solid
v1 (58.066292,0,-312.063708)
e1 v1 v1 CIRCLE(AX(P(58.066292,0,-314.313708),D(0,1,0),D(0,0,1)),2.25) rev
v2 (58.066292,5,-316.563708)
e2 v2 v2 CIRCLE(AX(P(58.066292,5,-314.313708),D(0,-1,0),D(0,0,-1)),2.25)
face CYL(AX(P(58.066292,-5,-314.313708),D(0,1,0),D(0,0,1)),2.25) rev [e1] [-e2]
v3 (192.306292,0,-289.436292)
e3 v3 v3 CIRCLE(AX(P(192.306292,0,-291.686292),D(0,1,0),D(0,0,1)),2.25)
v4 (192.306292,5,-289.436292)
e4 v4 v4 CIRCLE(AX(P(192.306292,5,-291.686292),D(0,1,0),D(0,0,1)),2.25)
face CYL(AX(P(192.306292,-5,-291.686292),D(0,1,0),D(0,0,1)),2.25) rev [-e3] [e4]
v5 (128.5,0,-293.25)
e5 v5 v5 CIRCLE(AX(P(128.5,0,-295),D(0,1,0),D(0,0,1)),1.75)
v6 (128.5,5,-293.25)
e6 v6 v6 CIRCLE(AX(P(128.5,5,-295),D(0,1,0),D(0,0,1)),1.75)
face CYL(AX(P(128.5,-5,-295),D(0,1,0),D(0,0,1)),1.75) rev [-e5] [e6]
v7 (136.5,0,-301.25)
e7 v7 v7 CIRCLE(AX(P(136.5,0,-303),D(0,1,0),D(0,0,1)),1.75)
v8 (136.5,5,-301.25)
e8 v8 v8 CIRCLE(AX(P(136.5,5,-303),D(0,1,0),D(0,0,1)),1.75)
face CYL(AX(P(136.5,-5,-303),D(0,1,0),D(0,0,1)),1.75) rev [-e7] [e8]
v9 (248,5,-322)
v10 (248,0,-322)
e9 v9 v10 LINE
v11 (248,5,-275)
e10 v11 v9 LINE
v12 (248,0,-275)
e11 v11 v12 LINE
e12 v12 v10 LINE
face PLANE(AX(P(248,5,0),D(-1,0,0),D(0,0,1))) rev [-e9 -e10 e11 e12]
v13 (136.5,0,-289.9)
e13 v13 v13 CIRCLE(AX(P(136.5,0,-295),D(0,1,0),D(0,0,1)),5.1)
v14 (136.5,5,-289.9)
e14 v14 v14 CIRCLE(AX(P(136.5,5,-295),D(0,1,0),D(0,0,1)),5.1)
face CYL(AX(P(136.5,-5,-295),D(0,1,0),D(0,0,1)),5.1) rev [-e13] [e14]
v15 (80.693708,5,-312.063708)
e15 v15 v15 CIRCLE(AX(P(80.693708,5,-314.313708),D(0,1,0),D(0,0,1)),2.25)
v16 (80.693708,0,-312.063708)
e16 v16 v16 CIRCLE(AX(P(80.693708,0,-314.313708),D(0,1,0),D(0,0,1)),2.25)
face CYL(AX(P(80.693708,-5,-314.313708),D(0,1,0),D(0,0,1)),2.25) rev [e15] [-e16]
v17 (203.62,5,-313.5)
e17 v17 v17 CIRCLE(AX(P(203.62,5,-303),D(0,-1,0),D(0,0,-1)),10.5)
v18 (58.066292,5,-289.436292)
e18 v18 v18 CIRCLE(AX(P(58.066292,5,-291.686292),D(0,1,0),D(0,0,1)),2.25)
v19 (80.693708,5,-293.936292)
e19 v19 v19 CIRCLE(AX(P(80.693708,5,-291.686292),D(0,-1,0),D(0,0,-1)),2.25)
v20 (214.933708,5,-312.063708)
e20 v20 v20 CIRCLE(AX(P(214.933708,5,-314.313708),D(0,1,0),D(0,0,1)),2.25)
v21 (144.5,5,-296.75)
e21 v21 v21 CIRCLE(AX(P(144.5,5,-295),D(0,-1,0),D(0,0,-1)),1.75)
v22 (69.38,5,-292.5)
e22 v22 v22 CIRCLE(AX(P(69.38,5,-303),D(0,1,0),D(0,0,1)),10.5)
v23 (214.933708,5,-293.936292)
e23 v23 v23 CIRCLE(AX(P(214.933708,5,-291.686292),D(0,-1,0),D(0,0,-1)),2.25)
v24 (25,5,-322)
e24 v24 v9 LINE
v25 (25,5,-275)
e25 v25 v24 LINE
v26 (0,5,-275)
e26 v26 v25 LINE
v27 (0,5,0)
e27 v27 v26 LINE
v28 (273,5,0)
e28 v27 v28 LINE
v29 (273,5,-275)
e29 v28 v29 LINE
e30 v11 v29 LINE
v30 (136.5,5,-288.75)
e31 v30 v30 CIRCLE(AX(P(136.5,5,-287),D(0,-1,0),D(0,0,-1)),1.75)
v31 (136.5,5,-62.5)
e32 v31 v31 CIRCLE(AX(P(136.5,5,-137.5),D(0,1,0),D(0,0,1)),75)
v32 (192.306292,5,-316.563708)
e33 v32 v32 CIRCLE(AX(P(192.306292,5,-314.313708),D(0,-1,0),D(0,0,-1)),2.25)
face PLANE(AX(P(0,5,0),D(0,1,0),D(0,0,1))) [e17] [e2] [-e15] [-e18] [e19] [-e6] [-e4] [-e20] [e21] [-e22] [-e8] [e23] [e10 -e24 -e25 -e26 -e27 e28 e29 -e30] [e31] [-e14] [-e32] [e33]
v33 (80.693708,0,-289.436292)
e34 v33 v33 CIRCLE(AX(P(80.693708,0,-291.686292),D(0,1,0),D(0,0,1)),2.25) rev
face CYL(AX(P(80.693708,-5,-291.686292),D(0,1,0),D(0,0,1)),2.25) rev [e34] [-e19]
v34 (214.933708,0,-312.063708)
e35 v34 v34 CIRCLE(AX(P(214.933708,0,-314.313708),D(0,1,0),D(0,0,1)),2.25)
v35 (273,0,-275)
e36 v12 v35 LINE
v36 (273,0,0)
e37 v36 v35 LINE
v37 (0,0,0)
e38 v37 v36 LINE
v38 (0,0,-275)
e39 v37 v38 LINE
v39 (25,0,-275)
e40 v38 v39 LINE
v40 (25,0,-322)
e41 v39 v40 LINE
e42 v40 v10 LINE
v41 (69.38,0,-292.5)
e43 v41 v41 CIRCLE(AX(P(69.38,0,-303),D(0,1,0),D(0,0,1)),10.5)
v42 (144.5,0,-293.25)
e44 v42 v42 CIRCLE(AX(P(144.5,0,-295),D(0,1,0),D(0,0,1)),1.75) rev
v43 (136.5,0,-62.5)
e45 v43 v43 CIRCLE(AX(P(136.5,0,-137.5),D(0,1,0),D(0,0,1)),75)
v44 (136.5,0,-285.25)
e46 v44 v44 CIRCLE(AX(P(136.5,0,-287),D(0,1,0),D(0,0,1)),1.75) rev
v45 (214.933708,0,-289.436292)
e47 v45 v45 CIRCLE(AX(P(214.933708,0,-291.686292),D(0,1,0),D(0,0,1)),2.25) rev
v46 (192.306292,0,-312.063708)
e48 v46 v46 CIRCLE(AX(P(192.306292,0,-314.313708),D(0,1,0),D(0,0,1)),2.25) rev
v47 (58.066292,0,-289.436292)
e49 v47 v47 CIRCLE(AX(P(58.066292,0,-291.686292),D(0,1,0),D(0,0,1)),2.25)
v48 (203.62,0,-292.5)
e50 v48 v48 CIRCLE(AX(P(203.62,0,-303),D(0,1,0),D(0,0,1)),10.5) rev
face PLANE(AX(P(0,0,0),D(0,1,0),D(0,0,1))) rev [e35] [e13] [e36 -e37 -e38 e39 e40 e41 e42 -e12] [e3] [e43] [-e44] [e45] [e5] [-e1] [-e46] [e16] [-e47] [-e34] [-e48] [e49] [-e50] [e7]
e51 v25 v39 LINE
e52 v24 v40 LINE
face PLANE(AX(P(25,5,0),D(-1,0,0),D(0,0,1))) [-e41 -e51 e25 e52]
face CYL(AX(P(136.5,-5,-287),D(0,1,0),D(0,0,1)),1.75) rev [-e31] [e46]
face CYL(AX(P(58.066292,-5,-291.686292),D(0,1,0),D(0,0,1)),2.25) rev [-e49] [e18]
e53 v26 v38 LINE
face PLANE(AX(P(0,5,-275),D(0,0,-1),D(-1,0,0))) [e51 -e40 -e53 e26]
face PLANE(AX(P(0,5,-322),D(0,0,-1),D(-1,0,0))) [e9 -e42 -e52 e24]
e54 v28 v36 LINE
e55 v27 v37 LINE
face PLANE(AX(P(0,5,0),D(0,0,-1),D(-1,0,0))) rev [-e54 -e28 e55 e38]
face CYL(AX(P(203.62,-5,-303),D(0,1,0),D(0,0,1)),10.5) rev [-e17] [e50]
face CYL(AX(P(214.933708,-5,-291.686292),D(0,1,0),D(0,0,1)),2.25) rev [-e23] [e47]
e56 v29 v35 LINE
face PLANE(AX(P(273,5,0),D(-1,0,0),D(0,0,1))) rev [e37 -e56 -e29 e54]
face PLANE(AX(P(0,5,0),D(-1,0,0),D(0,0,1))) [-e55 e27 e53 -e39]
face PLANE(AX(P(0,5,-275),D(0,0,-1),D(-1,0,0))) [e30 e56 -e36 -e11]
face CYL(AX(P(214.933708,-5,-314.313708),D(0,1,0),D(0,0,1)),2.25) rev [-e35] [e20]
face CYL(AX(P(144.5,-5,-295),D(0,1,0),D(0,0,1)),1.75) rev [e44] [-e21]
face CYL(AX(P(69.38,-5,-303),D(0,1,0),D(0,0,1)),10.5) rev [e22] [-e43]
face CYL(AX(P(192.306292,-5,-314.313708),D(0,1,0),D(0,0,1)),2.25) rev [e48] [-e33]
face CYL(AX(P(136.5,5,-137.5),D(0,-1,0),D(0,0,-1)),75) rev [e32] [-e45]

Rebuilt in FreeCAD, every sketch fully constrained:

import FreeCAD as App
import Part
import Sketcher
from FreeCAD import Vector


def add_polygon(sketch, points):
    """Adds a closed chain of lines whose ends are joined by coincident constraints."""
    first, n = sketch.GeometryCount, len(points)
    for a, b in zip(points, points[1:] + points[:1]):
        sketch.addGeometry(Part.LineSegment(App.Vector(*a, 0), App.Vector(*b, 0)), False)
    for i in range(n):
        sketch.addConstraint(Sketcher.Constraint("Coincident", first + i, 2, first + (i + 1) % n, 1))

doc = App.newDocument("Part")
body = doc.addObject("PartDesign::Body", "Body")

# Sketch on XZ plane
sketch1 = body.newObject("Sketcher::SketchObject", "Sketch")
sketch1.AttachmentSupport = (doc.getObject("XZ_Plane"), [""])
sketch1.MapMode = "FlatFace"
add_polygon(sketch1, [(0, -275), (0, 0), (273, 0), (273, -275), (248, -275), (248, -322), (25, -322), (25, -275)])  # lines 0-7
sketch1.addGeometry(Part.Circle(Vector(136, -138, 0), Vector(0, 0, 1), 75), False)  # 8
sketch1.addConstraint(Sketcher.Constraint("Vertical", 0))
sketch1.addConstraint(Sketcher.Constraint("Horizontal", 1))
sketch1.addConstraint(Sketcher.Constraint("Vertical", 2))
sketch1.addConstraint(Sketcher.Constraint("Horizontal", 3))
sketch1.addConstraint(Sketcher.Constraint("Vertical", 4))
sketch1.addConstraint(Sketcher.Constraint("Horizontal", 5))
sketch1.addConstraint(Sketcher.Constraint("Vertical", 6))
sketch1.addConstraint(Sketcher.Constraint("Horizontal", 7))
sketch1.addConstraint(Sketcher.Constraint("Coincident", 0, 2, -1, 1))
sketch1.addConstraint(Sketcher.Constraint("Horizontal", 3, 2, 6, 2))
sketch1.addConstraint(Sketcher.Constraint("Equal", 3, 7))
sketch1.addConstraint(Sketcher.Constraint("Diameter", 8, 150.0))
sketch1.addConstraint(Sketcher.Constraint("DistanceX", 1, 1, 1, 2, 273.0))
sketch1.addConstraint(Sketcher.Constraint("DistanceX", 3, 2, 3, 1, 25.0))
sketch1.addConstraint(Sketcher.Constraint("DistanceY", 0, 1, 0, 2, 275.0))
sketch1.addConstraint(Sketcher.Constraint("DistanceY", 4, 2, 4, 1, 47.0))
sketch1.addConstraint(Sketcher.Constraint("DistanceX", -1, 1, 8, 3, 136.5))
sketch1.addConstraint(Sketcher.Constraint("DistanceY", 8, 3, -1, 1, 137.5))
pad1 = body.newObject("PartDesign::Pad", "Pad")
pad1.Profile = sketch1
pad1.Length = 5
pad1.Reversed = True

# Sketch on XZ plane
sketch2 = body.newObject("Sketcher::SketchObject", "Sketch001")
sketch2.AttachmentSupport = (doc.getObject("XZ_Plane"), [""])
sketch2.MapMode = "FlatFace"
sketch2.AttachmentOffset = App.Placement(Vector(0, 0, -5), App.Rotation())
sketch2.addGeometry(Part.Circle(Vector(136.5, -295, 0), Vector(0, 0, 1), 5.1), False)
sketch2.addGeometry(Part.Circle(Vector(136.5, -303, 0), Vector(0, 0, 1), 1.8), False)
sketch2.addGeometry(Part.Circle(Vector(136.5, -287, 0), Vector(0, 0, 1), 1.8), False)
sketch2.addGeometry(Part.Circle(Vector(128.5, -295, 0), Vector(0, 0, 1), 1.8), False)
sketch2.addGeometry(Part.Circle(Vector(144.5, -295, 0), Vector(0, 0, 1), 1.8), False)
sketch2.addGeometry(Part.Circle(Vector(69.4, -303, 0), Vector(0, 0, 1), 10.5), False)
sketch2.addGeometry(Part.Circle(Vector(80.7, -314.3, 0), Vector(0, 0, 1), 2.2), False)
sketch2.addGeometry(Part.Circle(Vector(58.1, -314.3, 0), Vector(0, 0, 1), 2.2), False)
sketch2.addGeometry(Part.Circle(Vector(80.7, -291.7, 0), Vector(0, 0, 1), 2.2), False)
sketch2.addGeometry(Part.Circle(Vector(58.1, -291.7, 0), Vector(0, 0, 1), 2.2), False)
sketch2.addGeometry(Part.Circle(Vector(203.6, -303, 0), Vector(0, 0, 1), 10.5), False)
sketch2.addGeometry(Part.Circle(Vector(214.9, -291.7, 0), Vector(0, 0, 1), 2.2), False)
sketch2.addGeometry(Part.Circle(Vector(192.3, -291.7, 0), Vector(0, 0, 1), 2.2), False)
sketch2.addGeometry(Part.Circle(Vector(192.3, -314.3, 0), Vector(0, 0, 1), 2.2), False)
sketch2.addGeometry(Part.Circle(Vector(214.9, -314.3, 0), Vector(0, 0, 1), 2.2), False)
sketch2.addConstraint(Sketcher.Constraint("Equal", 1, 2))
sketch2.addConstraint(Sketcher.Constraint("Equal", 2, 3))
sketch2.addConstraint(Sketcher.Constraint("Equal", 3, 4))
sketch2.addConstraint(Sketcher.Constraint("Equal", 6, 7))
sketch2.addConstraint(Sketcher.Constraint("Equal", 7, 8))
sketch2.addConstraint(Sketcher.Constraint("Equal", 8, 9))
sketch2.addConstraint(Sketcher.Constraint("Equal", 5, 10))
sketch2.addConstraint(Sketcher.Constraint("Equal", 9, 11))
sketch2.addConstraint(Sketcher.Constraint("Equal", 11, 12))
sketch2.addConstraint(Sketcher.Constraint("Equal", 12, 13))
sketch2.addConstraint(Sketcher.Constraint("Equal", 13, 14))
sketch2.addConstraint(Sketcher.Constraint("Horizontal", 0, 3, 3, 3))
sketch2.addConstraint(Sketcher.Constraint("Horizontal", 3, 3, 4, 3))
sketch2.addConstraint(Sketcher.Constraint("Horizontal", 1, 3, 5, 3))
sketch2.addConstraint(Sketcher.Constraint("Horizontal", 6, 3, 7, 3))
sketch2.addConstraint(Sketcher.Constraint("Horizontal", 8, 3, 9, 3))
sketch2.addConstraint(Sketcher.Constraint("Horizontal", 5, 3, 10, 3))
sketch2.addConstraint(Sketcher.Constraint("Horizontal", 9, 3, 11, 3))
sketch2.addConstraint(Sketcher.Constraint("Horizontal", 11, 3, 12, 3))
sketch2.addConstraint(Sketcher.Constraint("Horizontal", 7, 3, 13, 3))
sketch2.addConstraint(Sketcher.Constraint("Horizontal", 13, 3, 14, 3))
sketch2.addConstraint(Sketcher.Constraint("Vertical", 0, 3, 1, 3))
sketch2.addConstraint(Sketcher.Constraint("Vertical", 1, 3, 2, 3))
sketch2.addConstraint(Sketcher.Constraint("Vertical", 6, 3, 8, 3))
sketch2.addConstraint(Sketcher.Constraint("Vertical", 7, 3, 9, 3))
sketch2.addConstraint(Sketcher.Constraint("Vertical", 12, 3, 13, 3))
sketch2.addConstraint(Sketcher.Constraint("Vertical", 11, 3, 14, 3))
sketch2.addConstraint(Sketcher.Constraint("Diameter", 5, 21.0))
sketch2.addConstraint(Sketcher.Constraint("Diameter", 0, 10.2))
sketch2.addConstraint(Sketcher.Constraint("Diameter", 1, 3.5))
sketch2.addConstraint(Sketcher.Constraint("Diameter", 6, 4.5))
sketch2.addConstraint(Sketcher.Constraint("DistanceY", 0, 3, -1, 1, 295.0))
sketch2.addConstraint(Sketcher.Constraint("DistanceY", 1, 3, -1, 1, 303.0))
sketch2.addConstraint(Sketcher.Constraint("DistanceY", 2, 3, -1, 1, 287.0))
sketch2.addConstraint(Sketcher.Constraint("DistanceX", 3, 3, 0, 3, 8.0))
sketch2.addConstraint(Sketcher.Constraint("DistanceX", 0, 3, 4, 3, 8.0))
sketch2.addConstraint(Sketcher.Constraint("DistanceX", -1, 1, 0, 3, 136.5))
sketch2.addConstraint(Sketcher.Constraint("DistanceX", -1, 1, 5, 3, 69.38))
sketch2.addConstraint(Sketcher.Constraint("DistanceX", -1, 1, 10, 3, 203.62))
sketch2.addConstraint(Sketcher.Constraint("DistanceX", -1, 1, 6, 3, 80.693708))
sketch2.addConstraint(Sketcher.Constraint("DistanceY", 6, 3, -1, 1, 314.313708))
sketch2.addConstraint(Sketcher.Constraint("DistanceX", -1, 1, 7, 3, 58.066292))
sketch2.addConstraint(Sketcher.Constraint("DistanceY", 8, 3, -1, 1, 291.686292))
sketch2.addConstraint(Sketcher.Constraint("DistanceX", -1, 1, 11, 3, 214.933708))
sketch2.addConstraint(Sketcher.Constraint("DistanceX", -1, 1, 12, 3, 192.306292))
pocket1 = body.newObject("PartDesign::Pocket", "Pocket")
pocket1.Profile = sketch2
pocket1.Length = 10
pocket1.Reversed = True

doc.recompute()
